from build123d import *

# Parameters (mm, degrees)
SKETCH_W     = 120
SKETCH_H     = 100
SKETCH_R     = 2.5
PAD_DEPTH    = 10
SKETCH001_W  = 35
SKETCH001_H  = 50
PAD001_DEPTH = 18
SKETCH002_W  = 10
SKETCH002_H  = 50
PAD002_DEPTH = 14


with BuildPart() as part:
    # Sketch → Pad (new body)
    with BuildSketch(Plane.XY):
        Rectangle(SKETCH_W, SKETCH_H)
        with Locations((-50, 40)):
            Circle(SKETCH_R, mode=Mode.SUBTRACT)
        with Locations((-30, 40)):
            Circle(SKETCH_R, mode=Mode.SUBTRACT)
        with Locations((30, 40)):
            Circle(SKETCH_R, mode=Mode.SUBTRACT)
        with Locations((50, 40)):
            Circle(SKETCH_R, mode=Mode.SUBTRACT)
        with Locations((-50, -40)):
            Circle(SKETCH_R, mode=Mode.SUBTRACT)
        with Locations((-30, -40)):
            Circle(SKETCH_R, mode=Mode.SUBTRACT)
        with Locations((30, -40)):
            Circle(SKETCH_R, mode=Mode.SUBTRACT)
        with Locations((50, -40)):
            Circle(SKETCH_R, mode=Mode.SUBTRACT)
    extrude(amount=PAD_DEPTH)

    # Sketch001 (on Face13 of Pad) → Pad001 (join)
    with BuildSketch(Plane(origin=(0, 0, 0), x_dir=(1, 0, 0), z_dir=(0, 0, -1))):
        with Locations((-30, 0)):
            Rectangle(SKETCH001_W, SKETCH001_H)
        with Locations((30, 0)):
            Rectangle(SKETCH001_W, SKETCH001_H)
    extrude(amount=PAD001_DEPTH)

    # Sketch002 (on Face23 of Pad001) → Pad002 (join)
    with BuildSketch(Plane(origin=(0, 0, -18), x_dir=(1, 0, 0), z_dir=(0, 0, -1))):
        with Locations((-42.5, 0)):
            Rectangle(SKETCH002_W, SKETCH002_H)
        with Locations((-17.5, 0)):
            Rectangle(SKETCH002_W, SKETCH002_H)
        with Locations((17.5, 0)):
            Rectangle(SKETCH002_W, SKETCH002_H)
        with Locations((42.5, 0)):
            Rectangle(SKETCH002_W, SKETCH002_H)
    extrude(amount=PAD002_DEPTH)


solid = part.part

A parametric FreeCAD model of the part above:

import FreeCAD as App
import Part
import Sketcher
Q = App.Units.Quantity

doc = App.newDocument("Part")
body = doc.addObject("PartDesign::Body", "Body")

# Sketch on XY plane
sketch1 = body.newObject("Sketcher::SketchObject", "Sketch")
sketch1.AttachmentSupport = (doc.getObject("XY_Plane"), [""])
sketch1.MapMode = "FlatFace"
sketch1.addGeometry([
    Part.LineSegment(App.Vector(-60, 50, 0), App.Vector(-60, -50, 0)),  # 0
    Part.LineSegment(App.Vector(-60, -50, 0), App.Vector(60, -50, 0)),  # 1
    Part.LineSegment(App.Vector(60, -50, 0), App.Vector(60, 50, 0)),  # 2
    Part.LineSegment(App.Vector(60, 50, 0), App.Vector(-60, 50, 0)),  # 3
    Part.Circle(App.Vector(-50, -40, 0), App.Vector(0, 0, 1), 2.5),  # 4
    Part.Circle(App.Vector(-30, -40, 0), App.Vector(0, 0, 1), 2.5),  # 5
    Part.Circle(App.Vector(30, -40, 0), App.Vector(0, 0, 1), 2.5),  # 6
    Part.Circle(App.Vector(50, -40, 0), App.Vector(0, 0, 1), 2.5),  # 7
    Part.Circle(App.Vector(-50, 40, 0), App.Vector(0, 0, 1), 2.5),  # 8
    Part.Circle(App.Vector(-30, 40, 0), App.Vector(0, 0, 1), 2.5),  # 9
    Part.Circle(App.Vector(30, 40, 0), App.Vector(0, 0, 1), 2.5),  # 10
    Part.Circle(App.Vector(50, 40, 0), App.Vector(0, 0, 1), 2.5),  # 11
], False)
sketch1.addConstraint([
    Sketcher.Constraint("Coincident", 0, 2, 1, 1),
    Sketcher.Constraint("Coincident", 1, 2, 2, 1),
    Sketcher.Constraint("Coincident", 2, 2, 3, 1),
    Sketcher.Constraint("Coincident", 3, 2, 0, 1),
    Sketcher.Constraint("Vertical", 0),
    Sketcher.Constraint("Horizontal", 1),
    Sketcher.Constraint("Vertical", 2),
    Sketcher.Constraint("Horizontal", 3),
    Sketcher.Constraint("Equal", 4, 5),
    Sketcher.Constraint("Equal", 5, 6),
    Sketcher.Constraint("Equal", 6, 7),
    Sketcher.Constraint("Equal", 7, 8),
    Sketcher.Constraint("Equal", 8, 9),
    Sketcher.Constraint("Equal", 9, 10),
    Sketcher.Constraint("Equal", 10, 11),
    Sketcher.Constraint("Symmetric", 7, 3, 8, 3, -1, 1),
    Sketcher.Constraint("Symmetric", 6, 3, 9, 3, -1, 1),
    Sketcher.Constraint("Symmetric", 5, 3, 10, 3, -1, 1),
    Sketcher.Constraint("Symmetric", 4, 3, 11, 3, -1, 1),
    Sketcher.Constraint("Symmetric", 0, 2, 2, 2, -1, 1),
    Sketcher.Constraint("Symmetric", 5, 3, 6, 3, -2),
    Sketcher.Constraint("Symmetric", 4, 3, 7, 3, -2),
    Sketcher.Constraint("Horizontal", 4, 3, 5, 3),
    Sketcher.Constraint("Diameter", 4, Q("5 mm")),
    Sketcher.Constraint("DistanceX", 1, 1, 1, 2, Q("120 mm")),
    Sketcher.Constraint("DistanceY", 0, 2, 0, 1, Q("100 mm")),
    Sketcher.Constraint("DistanceX", 4, 3, -1, 1, Q("50 mm")),
    Sketcher.Constraint("DistanceY", 4, 3, -1, 1, Q("40 mm")),
    Sketcher.Constraint("DistanceX", 5, 3, -1, 1, Q("30 mm")),
])
pad1 = body.newObject("PartDesign::Pad", "Pad")
pad1.Profile = sketch1
pad1.Length = 10

# Sketch on XY plane
sketch2 = body.newObject("Sketcher::SketchObject", "Sketch001")
sketch2.AttachmentSupport = (doc.getObject("XY_Plane"), [""])
sketch2.MapMode = "FlatFace"
sketch2.addGeometry([
    Part.LineSegment(App.Vector(-48, -25, 0), App.Vector(-48, 25, 0)),  # 0
    Part.LineSegment(App.Vector(-48, 25, 0), App.Vector(-12, 25, 0)),  # 1
    Part.LineSegment(App.Vector(-12, 25, 0), App.Vector(-12, -25, 0)),  # 2
    Part.LineSegment(App.Vector(-12, -25, 0), App.Vector(-48, -25, 0)),  # 3
    Part.LineSegment(App.Vector(12, -25, 0), App.Vector(12, 25, 0)),  # 4
    Part.LineSegment(App.Vector(12, 25, 0), App.Vector(48, 25, 0)),  # 5
    Part.LineSegment(App.Vector(48, 25, 0), App.Vector(48, -25, 0)),  # 6
    Part.LineSegment(App.Vector(48, -25, 0), App.Vector(12, -25, 0)),  # 7
], False)
sketch2.addConstraint([
    Sketcher.Constraint("Coincident", 0, 2, 1, 1),
    Sketcher.Constraint("Coincident", 1, 2, 2, 1),
    Sketcher.Constraint("Coincident", 2, 2, 3, 1),
    Sketcher.Constraint("Coincident", 3, 2, 0, 1),
    Sketcher.Constraint("Coincident", 4, 2, 5, 1),
    Sketcher.Constraint("Coincident", 5, 2, 6, 1),
    Sketcher.Constraint("Coincident", 6, 2, 7, 1),
    Sketcher.Constraint("Coincident", 7, 2, 4, 1),
    Sketcher.Constraint("Vertical", 0),
    Sketcher.Constraint("Horizontal", 1),
    Sketcher.Constraint("Vertical", 2),
    Sketcher.Constraint("Horizontal", 3),
    Sketcher.Constraint("Vertical", 4),
    Sketcher.Constraint("Horizontal", 5),
    Sketcher.Constraint("Vertical", 6),
    Sketcher.Constraint("Horizontal", 7),
    Sketcher.Constraint("Symmetric", 2, 2, 4, 2, -1, 1),
    Sketcher.Constraint("Symmetric", 0, 2, 6, 2, -1, 1),
    Sketcher.Constraint("Horizontal", 1, 2, 4, 2),
    Sketcher.Constraint("DistanceX", 1, 1, 1, 2, Q("35 mm")),
    Sketcher.Constraint("DistanceY", 0, 1, 0, 2, Q("50 mm")),
    Sketcher.Constraint("DistanceX", 1, 2, 4, 2, Q("25 mm")),
])
pad2 = body.newObject("PartDesign::Pad", "Pad001")
pad2.Profile = sketch2
pad2.Length = 18
pad2.Reversed = True

# Sketch on XY plane
sketch3 = body.newObject("Sketcher::SketchObject", "Sketch002")
sketch3.AttachmentSupport = (doc.getObject("XY_Plane"), [""])
sketch3.MapMode = "FlatFace"
sketch3.AttachmentOffset = App.Placement(App.Vector(0, 0, -18), App.Rotation())
sketch3.addGeometry([
    Part.LineSegment(App.Vector(-48, -25, 0), App.Vector(-48, 25, 0)),  # 0
    Part.LineSegment(App.Vector(-48, 25, 0), App.Vector(-38, 25, 0)),  # 1
    Part.LineSegment(App.Vector(-38, 25, 0), App.Vector(-38, -25, 0)),  # 2
    Part.LineSegment(App.Vector(-38, -25, 0), App.Vector(-48, -25, 0)),  # 3
    Part.LineSegment(App.Vector(-22, -25, 0), App.Vector(-22, 25, 0)),  # 4
    Part.LineSegment(App.Vector(-22, 25, 0), App.Vector(-12, 25, 0)),  # 5
    Part.LineSegment(App.Vector(-12, 25, 0), App.Vector(-12, -25, 0)),  # 6
    Part.LineSegment(App.Vector(-12, -25, 0), App.Vector(-22, -25, 0)),  # 7
    Part.LineSegment(App.Vector(12, -25, 0), App.Vector(12, 25, 0)),  # 8
    Part.LineSegment(App.Vector(12, 25, 0), App.Vector(22, 25, 0)),  # 9
    Part.LineSegment(App.Vector(22, 25, 0), App.Vector(22, -25, 0)),  # 10
    Part.LineSegment(App.Vector(22, -25, 0), App.Vector(12, -25, 0)),  # 11
    Part.LineSegment(App.Vector(38, -25, 0), App.Vector(38, 25, 0)),  # 12
    Part.LineSegment(App.Vector(38, 25, 0), App.Vector(48, 25, 0)),  # 13
    Part.LineSegment(App.Vector(48, 25, 0), App.Vector(48, -25, 0)),  # 14
    Part.LineSegment(App.Vector(48, -25, 0), App.Vector(38, -25, 0)),  # 15
], False)
sketch3.addConstraint([
    Sketcher.Constraint("Coincident", 0, 2, 1, 1),
    Sketcher.Constraint("Coincident", 1, 2, 2, 1),
    Sketcher.Constraint("Coincident", 2, 2, 3, 1),
    Sketcher.Constraint("Coincident", 3, 2, 0, 1),
    Sketcher.Constraint("Coincident", 4, 2, 5, 1),
    Sketcher.Constraint("Coincident", 5, 2, 6, 1),
    Sketcher.Constraint("Coincident", 6, 2, 7, 1),
    Sketcher.Constraint("Coincident", 7, 2, 4, 1),
    Sketcher.Constraint("Coincident", 8, 2, 9, 1),
    Sketcher.Constraint("Coincident", 9, 2, 10, 1),
    Sketcher.Constraint("Coincident", 10, 2, 11, 1),
    Sketcher.Constraint("Coincident", 11, 2, 8, 1),
    Sketcher.Constraint("Coincident", 12, 2, 13, 1),
    Sketcher.Constraint("Coincident", 13, 2, 14, 1),
    Sketcher.Constraint("Coincident", 14, 2, 15, 1),
    Sketcher.Constraint("Coincident", 15, 2, 12, 1),
    Sketcher.Constraint("Vertical", 0),
    Sketcher.Constraint("Horizontal", 1),
    Sketcher.Constraint("Vertical", 2),
    Sketcher.Constraint("Horizontal", 3),
    Sketcher.Constraint("Vertical", 4),
    Sketcher.Constraint("Horizontal", 5),
    Sketcher.Constraint("Vertical", 6),
    Sketcher.Constraint("Horizontal", 7),
    Sketcher.Constraint("Vertical", 8),
    Sketcher.Constraint("Horizontal", 9),
    Sketcher.Constraint("Vertical", 10),
    Sketcher.Constraint("Horizontal", 11),
    Sketcher.Constraint("Vertical", 12),
    Sketcher.Constraint("Horizontal", 13),
    Sketcher.Constraint("Vertical", 14),
    Sketcher.Constraint("Horizontal", 15),
    Sketcher.Constraint("Symmetric", 6, 2, 8, 2, -1, 1),
    Sketcher.Constraint("Symmetric", 4, 2, 10, 2, -1, 1),
    Sketcher.Constraint("Symmetric", 2, 2, 12, 2, -1, 1),
    Sketcher.Constraint("Symmetric", 0, 2, 14, 2, -1, 1),
    Sketcher.Constraint("Horizontal", 1, 2, 4, 2),
    Sketcher.Constraint("Horizontal", 3, 2, 6, 2),
    Sketcher.Constraint("Horizontal", 5, 2, 8, 2),
    Sketcher.Constraint("Equal", 3, 5),
    Sketcher.Constraint("DistanceX", 1, 1, 1, 2, Q("10 mm")),
    Sketcher.Constraint("DistanceY", 0, 1, 0, 2, Q("50 mm")),
    Sketcher.Constraint("DistanceX", 1, 2, 4, 2, Q("15 mm")),
    Sketcher.Constraint("DistanceX", 5, 2, 8, 2, Q("25 mm")),
])
pad3 = body.newObject("PartDesign::Pad", "Pad002")
pad3.Profile = sketch3
pad3.Length = 14
pad3.Reversed = True

doc.recompute()
